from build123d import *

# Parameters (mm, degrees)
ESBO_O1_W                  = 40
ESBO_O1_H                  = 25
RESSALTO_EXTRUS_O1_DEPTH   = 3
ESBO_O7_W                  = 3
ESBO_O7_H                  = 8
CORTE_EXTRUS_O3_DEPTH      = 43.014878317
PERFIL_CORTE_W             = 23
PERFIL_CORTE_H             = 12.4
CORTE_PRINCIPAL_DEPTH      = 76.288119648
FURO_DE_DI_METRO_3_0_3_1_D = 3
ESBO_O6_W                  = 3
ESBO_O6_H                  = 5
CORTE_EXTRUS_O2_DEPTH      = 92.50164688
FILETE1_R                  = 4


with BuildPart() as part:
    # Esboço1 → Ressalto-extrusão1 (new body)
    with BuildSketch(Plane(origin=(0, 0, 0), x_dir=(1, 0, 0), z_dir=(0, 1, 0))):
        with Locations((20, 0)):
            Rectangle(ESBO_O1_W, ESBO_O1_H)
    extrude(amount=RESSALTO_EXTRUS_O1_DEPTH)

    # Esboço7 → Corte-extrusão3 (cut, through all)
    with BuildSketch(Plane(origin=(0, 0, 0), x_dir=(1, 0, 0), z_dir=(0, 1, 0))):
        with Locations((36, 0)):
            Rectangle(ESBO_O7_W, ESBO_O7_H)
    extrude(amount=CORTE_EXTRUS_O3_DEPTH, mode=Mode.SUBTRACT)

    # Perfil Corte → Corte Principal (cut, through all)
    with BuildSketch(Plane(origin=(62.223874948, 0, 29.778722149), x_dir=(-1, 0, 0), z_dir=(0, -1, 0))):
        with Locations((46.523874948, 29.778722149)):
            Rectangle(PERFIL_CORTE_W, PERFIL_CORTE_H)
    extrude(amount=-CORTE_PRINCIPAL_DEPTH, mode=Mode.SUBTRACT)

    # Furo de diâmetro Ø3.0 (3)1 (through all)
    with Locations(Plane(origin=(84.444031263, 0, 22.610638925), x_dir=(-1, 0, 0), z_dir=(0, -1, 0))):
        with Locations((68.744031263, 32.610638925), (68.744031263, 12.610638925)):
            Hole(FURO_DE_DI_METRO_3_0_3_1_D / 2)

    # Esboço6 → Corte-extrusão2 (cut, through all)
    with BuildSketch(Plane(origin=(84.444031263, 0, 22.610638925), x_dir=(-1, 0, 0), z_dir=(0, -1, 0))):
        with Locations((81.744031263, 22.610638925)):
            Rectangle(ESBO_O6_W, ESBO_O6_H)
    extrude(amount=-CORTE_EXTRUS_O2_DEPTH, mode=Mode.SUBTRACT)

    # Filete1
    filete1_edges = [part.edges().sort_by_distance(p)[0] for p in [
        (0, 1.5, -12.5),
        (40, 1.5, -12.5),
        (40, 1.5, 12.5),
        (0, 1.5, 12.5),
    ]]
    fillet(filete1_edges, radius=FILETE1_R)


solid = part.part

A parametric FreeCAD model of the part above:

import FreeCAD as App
import Part
import Sketcher
from FreeCAD import Vector
Q = App.Units.Quantity


def edges_at(feature, points):
    """Names of the edges that pass closest to the given points."""
    edges = feature.Shape.Edges
    near = lambda p: min(range(len(edges)), key=lambda i: edges[i].distToShape(Part.Vertex(*p))[0])
    return sorted({f"Edge{near(p) + 1}" for p in points})

doc = App.newDocument("Part")
body = doc.addObject("PartDesign::Body", "Body")

# Sketch on XZ plane
sketch1 = body.newObject("Sketcher::SketchObject", "Sketch")
sketch1.AttachmentSupport = (doc.getObject("XZ_Plane"), [""])
sketch1.MapMode = "FlatFace"
sketch1.addGeometry([
    Part.LineSegment(Vector(0, -12, 0), Vector(0, 12, 0)),
    Part.LineSegment(Vector(0, 12, 0), Vector(40, 12, 0)),
    Part.LineSegment(Vector(40, 12, 0), Vector(40, -12, 0)),
    Part.LineSegment(Vector(40, -12, 0), Vector(0, -12, 0)),
], False)
sketch1.addConstraint([
    Sketcher.Constraint("Coincident", 0, 2, 1, 1),
    Sketcher.Constraint("Coincident", 1, 2, 2, 1),
    Sketcher.Constraint("Coincident", 2, 2, 3, 1),
    Sketcher.Constraint("Coincident", 3, 2, 0, 1),
    Sketcher.Constraint("Vertical", 0),
    Sketcher.Constraint("Horizontal", 1),
    Sketcher.Constraint("Vertical", 2),
    Sketcher.Constraint("Horizontal", 3),
    Sketcher.Constraint("Symmetric", 0, 2, 3, 2, -1, 1),
    Sketcher.Constraint("DistanceX", 1, 1, 1, 2, Q("40 mm")),
    Sketcher.Constraint("DistanceY", 0, 1, 0, 2, Q("25 mm")),
])
pad1 = body.newObject("PartDesign::Pad", "Pad")
pad1.Profile = sketch1
pad1.Length = 3
pad1.Reversed = True

# Sketch on XZ plane
sketch2 = body.newObject("Sketcher::SketchObject", "Sketch001")
sketch2.AttachmentSupport = (doc.getObject("XZ_Plane"), [""])
sketch2.MapMode = "FlatFace"
sketch2.addGeometry([
    Part.LineSegment(Vector(34.5, -4, 0), Vector(34.5, 4, 0)),
    Part.LineSegment(Vector(34.5, 4, 0), Vector(37.5, 4, 0)),
    Part.LineSegment(Vector(37.5, 4, 0), Vector(37.5, -4, 0)),
    Part.LineSegment(Vector(37.5, -4, 0), Vector(34.5, -4, 0)),
], False)
sketch2.addConstraint([
    Sketcher.Constraint("Coincident", 0, 2, 1, 1),
    Sketcher.Constraint("Coincident", 1, 2, 2, 1),
    Sketcher.Constraint("Coincident", 2, 2, 3, 1),
    Sketcher.Constraint("Coincident", 3, 2, 0, 1),
    Sketcher.Constraint("Vertical", 0),
    Sketcher.Constraint("Horizontal", 1),
    Sketcher.Constraint("Vertical", 2),
    Sketcher.Constraint("Horizontal", 3),
    Sketcher.Constraint("DistanceX", 1, 1, 1, 2, Q("3 mm")),
    Sketcher.Constraint("DistanceY", 0, 1, 0, 2, Q("8 mm")),
    Sketcher.Constraint("DistanceY", -1, 1, 0, 2, Q("4 mm")),
    Sketcher.Constraint("DistanceX", -1, 1, 0, 2, Q("34.5 mm")),
])
pocket1 = body.newObject("PartDesign::Pocket", "Pocket")
pocket1.Profile = sketch2
pocket1.Type = "ThroughAll"

# Sketch on XZ plane
sketch3 = body.newObject("Sketcher::SketchObject", "Sketch002")
sketch3.AttachmentSupport = (doc.getObject("XZ_Plane"), [""])
sketch3.MapMode = "FlatFace"
sketch3.addGeometry([
    Part.LineSegment(Vector(27, -6, 0), Vector(27, 6, 0)),
    Part.LineSegment(Vector(27, 6, 0), Vector(4, 6, 0)),
    Part.LineSegment(Vector(4, 6, 0), Vector(4, -6, 0)),
    Part.LineSegment(Vector(4, -6, 0), Vector(27, -6, 0)),
], False)
sketch3.addConstraint([
    Sketcher.Constraint("Coincident", 0, 2, 1, 1),
    Sketcher.Constraint("Coincident", 1, 2, 2, 1),
    Sketcher.Constraint("Coincident", 2, 2, 3, 1),
    Sketcher.Constraint("Coincident", 3, 2, 0, 1),
    Sketcher.Constraint("Vertical", 0),
    Sketcher.Constraint("Horizontal", 1),
    Sketcher.Constraint("Vertical", 2),
    Sketcher.Constraint("Horizontal", 3),
    Sketcher.Constraint("DistanceX", 1, 2, 1, 1, Q("23 mm")),
    Sketcher.Constraint("DistanceY", 0, 1, 0, 2, Q("12.4 mm")),
    Sketcher.Constraint("DistanceX", -1, 1, 0, 2, Q("27.2 mm")),
    Sketcher.Constraint("DistanceY", -1, 1, 0, 2, Q("6.2 mm")),
])
pocket2 = body.newObject("PartDesign::Pocket", "Pocket001")
pocket2.Profile = sketch3
pocket2.Type = "ThroughAll"

# Sketch on XZ plane
sketch4 = body.newObject("Sketcher::SketchObject", "Sketch003")
sketch4.AttachmentSupport = (doc.getObject("XZ_Plane"), [""])
sketch4.MapMode = "FlatFace"
sketch4.addGeometry([
    Part.Circle(Vector(15.7, -10, 0), Vector(0, 0, 1), 1.5),
    Part.Circle(Vector(15.7, 10, 0), Vector(0, 0, 1), 1.5),
], False)
sketch4.addConstraint([
    Sketcher.Constraint("Equal", 0, 1),
    Sketcher.Constraint("Symmetric", 0, 3, 1, 3, -1),
    Sketcher.Constraint("Diameter", 0, Q("3 mm")),
    Sketcher.Constraint("DistanceY", 0, 3, -1, 1, Q("10 mm")),
    Sketcher.Constraint("DistanceX", -1, 1, 0, 3, Q("15.7 mm")),
])
doc.recompute()
hole = body.newObject("PartDesign::Hole", "Hole")
hole.Profile = sketch4
hole.ThreadType = "None"
hole.Diameter = 3
hole.DepthType = "ThroughAll"

# Sketch on XZ plane
sketch5 = body.newObject("Sketcher::SketchObject", "Sketch004")
sketch5.AttachmentSupport = (doc.getObject("XZ_Plane"), [""])
sketch5.MapMode = "FlatFace"
sketch5.addGeometry([
    Part.LineSegment(Vector(4.2, -2.5, 0), Vector(4.2, 2.5, 0)),
    Part.LineSegment(Vector(4.2, 2.5, 0), Vector(1.2, 2.5, 0)),
    Part.LineSegment(Vector(1.2, 2.5, 0), Vector(1.2, -2.5, 0)),
    Part.LineSegment(Vector(1.2, -2.5, 0), Vector(4.2, -2.5, 0)),
], False)
sketch5.addConstraint([
    Sketcher.Constraint("Coincident", 0, 2, 1, 1),
    Sketcher.Constraint("Coincident", 1, 2, 2, 1),
    Sketcher.Constraint("Coincident", 2, 2, 3, 1),
    Sketcher.Constraint("Coincident", 3, 2, 0, 1),
    Sketcher.Constraint("Vertical", 0),
    Sketcher.Constraint("Horizontal", 1),
    Sketcher.Constraint("Vertical", 2),
    Sketcher.Constraint("Horizontal", 3),
    Sketcher.Constraint("DistanceX", 1, 2, 1, 1, Q("3 mm")),
    Sketcher.Constraint("DistanceY", 0, 1, 0, 2, Q("5 mm")),
    Sketcher.Constraint("DistanceX", -1, 1, 0, 2, Q("4.2 mm")),
    Sketcher.Constraint("DistanceY", -1, 1, 0, 2, Q("2.5 mm")),
])
pocket3 = body.newObject("PartDesign::Pocket", "Pocket002")
pocket3.Profile = sketch5
pocket3.Type = "ThroughAll"
doc.recompute()

fillet = body.newObject("PartDesign::Fillet", "Fillet")
fillet.Base = (pocket3, edges_at(pocket3, [
    (0, 1.5, -12.5),
    (40, 1.5, -12.5),
    (40, 1.5, 12.5),
    (0, 1.5, 12.5),
]))
fillet.Radius = 4

doc.recompute()
